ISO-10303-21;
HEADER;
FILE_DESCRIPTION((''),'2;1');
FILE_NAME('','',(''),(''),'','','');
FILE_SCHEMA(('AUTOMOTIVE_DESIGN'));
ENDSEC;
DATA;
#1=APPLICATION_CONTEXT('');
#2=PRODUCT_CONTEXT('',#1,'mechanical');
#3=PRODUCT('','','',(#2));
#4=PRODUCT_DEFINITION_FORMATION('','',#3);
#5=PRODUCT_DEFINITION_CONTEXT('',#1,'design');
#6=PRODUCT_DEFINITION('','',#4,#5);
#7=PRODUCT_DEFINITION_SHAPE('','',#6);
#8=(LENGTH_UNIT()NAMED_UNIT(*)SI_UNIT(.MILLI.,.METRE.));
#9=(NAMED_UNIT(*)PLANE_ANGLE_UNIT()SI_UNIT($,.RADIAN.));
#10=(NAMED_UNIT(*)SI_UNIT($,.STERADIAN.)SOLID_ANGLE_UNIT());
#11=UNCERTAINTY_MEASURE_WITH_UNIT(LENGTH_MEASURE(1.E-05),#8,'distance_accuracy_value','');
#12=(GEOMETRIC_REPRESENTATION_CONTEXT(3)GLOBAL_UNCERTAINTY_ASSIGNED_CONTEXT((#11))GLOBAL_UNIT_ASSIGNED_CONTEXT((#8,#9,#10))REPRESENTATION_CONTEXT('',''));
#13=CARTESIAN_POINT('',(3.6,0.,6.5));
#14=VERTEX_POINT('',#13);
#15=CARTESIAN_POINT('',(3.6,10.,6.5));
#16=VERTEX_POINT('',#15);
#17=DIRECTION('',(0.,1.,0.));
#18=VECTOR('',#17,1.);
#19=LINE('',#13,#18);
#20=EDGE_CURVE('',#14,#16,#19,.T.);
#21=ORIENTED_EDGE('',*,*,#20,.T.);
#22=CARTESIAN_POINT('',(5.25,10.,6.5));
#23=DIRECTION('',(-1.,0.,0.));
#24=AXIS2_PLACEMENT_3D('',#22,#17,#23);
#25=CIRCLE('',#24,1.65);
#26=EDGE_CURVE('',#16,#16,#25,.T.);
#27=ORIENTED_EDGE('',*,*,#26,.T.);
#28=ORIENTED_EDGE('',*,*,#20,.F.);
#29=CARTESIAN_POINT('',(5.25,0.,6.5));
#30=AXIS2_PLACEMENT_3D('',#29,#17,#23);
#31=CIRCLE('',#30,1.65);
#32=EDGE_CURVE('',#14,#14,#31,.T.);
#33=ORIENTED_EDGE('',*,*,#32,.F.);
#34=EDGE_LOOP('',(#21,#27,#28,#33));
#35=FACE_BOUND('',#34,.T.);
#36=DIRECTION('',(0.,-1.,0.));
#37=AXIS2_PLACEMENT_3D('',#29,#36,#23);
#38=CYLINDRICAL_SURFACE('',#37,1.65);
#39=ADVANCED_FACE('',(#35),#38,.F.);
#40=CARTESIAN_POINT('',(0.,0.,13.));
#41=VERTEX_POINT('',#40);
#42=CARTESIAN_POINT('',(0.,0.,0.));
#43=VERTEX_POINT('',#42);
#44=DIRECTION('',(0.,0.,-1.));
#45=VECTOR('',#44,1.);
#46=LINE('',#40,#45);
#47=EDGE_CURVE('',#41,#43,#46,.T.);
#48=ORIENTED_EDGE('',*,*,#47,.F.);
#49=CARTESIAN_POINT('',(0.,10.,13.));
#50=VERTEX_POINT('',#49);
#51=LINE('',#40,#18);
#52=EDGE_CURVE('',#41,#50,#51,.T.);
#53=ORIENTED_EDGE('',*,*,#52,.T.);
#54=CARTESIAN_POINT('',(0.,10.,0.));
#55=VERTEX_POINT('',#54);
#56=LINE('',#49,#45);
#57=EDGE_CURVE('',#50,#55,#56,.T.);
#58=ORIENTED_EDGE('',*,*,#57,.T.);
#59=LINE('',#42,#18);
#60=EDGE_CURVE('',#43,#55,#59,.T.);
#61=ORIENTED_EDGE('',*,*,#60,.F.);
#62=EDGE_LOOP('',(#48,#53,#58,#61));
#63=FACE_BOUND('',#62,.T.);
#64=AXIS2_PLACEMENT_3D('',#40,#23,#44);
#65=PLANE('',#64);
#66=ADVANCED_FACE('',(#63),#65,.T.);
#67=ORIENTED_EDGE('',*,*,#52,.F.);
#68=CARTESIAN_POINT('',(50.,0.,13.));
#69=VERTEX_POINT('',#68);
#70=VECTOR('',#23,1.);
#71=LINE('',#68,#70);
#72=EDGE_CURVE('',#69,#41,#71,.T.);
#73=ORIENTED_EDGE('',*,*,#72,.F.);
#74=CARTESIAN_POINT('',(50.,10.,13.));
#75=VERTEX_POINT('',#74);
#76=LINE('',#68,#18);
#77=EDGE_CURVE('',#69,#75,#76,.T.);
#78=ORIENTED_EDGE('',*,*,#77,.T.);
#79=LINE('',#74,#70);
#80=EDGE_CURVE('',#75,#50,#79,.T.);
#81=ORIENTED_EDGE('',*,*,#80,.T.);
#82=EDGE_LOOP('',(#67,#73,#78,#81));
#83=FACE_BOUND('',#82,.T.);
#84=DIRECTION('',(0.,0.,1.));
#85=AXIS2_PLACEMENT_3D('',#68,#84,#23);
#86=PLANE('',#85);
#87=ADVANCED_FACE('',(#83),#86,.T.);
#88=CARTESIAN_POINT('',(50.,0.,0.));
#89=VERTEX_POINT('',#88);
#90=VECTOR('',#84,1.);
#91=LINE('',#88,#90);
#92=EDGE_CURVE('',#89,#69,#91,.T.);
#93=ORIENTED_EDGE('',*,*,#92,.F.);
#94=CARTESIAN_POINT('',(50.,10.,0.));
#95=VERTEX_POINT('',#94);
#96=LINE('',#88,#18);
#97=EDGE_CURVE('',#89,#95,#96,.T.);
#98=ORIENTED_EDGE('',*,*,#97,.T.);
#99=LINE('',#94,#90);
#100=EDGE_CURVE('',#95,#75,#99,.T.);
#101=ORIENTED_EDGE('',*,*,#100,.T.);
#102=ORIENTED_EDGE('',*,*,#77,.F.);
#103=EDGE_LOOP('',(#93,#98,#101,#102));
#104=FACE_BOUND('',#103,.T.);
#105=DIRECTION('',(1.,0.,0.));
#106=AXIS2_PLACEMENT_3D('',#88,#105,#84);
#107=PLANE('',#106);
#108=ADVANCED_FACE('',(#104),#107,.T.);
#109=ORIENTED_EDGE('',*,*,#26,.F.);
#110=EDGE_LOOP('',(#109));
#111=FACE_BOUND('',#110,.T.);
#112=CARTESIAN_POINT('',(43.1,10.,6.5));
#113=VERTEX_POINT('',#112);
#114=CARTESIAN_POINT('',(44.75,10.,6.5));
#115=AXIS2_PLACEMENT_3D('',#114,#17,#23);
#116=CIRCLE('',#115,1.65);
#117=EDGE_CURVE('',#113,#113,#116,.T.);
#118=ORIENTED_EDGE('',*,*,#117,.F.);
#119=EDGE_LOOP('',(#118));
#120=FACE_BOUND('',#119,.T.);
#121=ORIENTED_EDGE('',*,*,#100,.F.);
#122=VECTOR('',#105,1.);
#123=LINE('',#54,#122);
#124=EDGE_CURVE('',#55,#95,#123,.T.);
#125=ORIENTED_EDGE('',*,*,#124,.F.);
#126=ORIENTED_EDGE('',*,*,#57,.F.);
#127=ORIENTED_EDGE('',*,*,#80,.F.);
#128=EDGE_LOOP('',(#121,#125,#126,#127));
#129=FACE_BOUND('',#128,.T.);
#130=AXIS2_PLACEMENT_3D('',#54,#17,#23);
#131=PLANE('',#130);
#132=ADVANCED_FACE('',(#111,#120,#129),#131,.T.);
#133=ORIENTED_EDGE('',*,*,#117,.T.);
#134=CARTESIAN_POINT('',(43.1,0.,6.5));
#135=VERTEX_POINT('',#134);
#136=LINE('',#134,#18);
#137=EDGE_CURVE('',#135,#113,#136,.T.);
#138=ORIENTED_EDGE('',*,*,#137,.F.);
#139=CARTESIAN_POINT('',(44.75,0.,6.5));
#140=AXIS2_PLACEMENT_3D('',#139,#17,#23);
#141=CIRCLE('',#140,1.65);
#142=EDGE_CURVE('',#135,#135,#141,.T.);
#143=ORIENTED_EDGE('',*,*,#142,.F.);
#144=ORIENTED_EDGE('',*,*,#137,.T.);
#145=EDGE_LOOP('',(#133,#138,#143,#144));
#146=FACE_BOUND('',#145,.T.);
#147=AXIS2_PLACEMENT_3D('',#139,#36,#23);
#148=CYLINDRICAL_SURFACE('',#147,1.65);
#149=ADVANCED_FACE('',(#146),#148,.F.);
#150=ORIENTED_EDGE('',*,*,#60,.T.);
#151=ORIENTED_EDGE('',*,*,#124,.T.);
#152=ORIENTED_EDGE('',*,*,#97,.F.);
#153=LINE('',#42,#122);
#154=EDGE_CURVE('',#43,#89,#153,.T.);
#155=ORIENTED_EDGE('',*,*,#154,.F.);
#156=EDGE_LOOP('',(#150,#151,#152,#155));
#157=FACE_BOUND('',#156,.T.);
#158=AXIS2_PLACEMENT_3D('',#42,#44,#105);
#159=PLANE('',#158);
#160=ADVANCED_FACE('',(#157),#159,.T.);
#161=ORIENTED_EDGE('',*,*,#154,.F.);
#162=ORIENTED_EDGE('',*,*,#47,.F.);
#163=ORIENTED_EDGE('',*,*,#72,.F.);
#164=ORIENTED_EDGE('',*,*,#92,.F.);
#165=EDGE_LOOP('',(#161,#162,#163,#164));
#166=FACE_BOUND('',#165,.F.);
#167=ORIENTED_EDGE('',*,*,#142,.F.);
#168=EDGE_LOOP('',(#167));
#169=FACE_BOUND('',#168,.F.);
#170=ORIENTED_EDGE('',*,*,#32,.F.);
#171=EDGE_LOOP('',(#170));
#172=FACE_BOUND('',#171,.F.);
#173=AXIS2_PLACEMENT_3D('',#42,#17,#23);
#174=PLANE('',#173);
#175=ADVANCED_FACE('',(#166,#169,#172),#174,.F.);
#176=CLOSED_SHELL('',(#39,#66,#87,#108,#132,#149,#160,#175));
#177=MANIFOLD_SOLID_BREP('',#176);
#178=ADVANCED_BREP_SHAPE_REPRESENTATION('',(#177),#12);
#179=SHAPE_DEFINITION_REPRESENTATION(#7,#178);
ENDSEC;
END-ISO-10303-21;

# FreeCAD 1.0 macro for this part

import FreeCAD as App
import Part
import Sketcher


def add_polygon(sketch, points):
    """Adds a closed chain of lines whose ends are joined by coincident constraints."""
    first, n = sketch.GeometryCount, len(points)
    for a, b in zip(points, points[1:] + points[:1]):
        sketch.addGeometry(Part.LineSegment(App.Vector(*a, 0), App.Vector(*b, 0)), False)
    for i in range(n):
        sketch.addConstraint(Sketcher.Constraint("Coincident", first + i, 2, first + (i + 1) % n, 1))

doc = App.newDocument("Part")
body = doc.addObject("PartDesign::Body", "Body")

# Sketch on XZ plane
sketch1 = doc.addObject("Sketcher::SketchObject", "Sketch")
body.addObject(sketch1)
sketch1.AttachmentSupport = (doc.XZ_Plane, [""])
sketch1.MapMode = "FlatFace"
add_polygon(sketch1, [(50, 0), (0, 0), (0, 13), (50, 13)])  # lines 0-3
sketch1.addGeometry(Part.Circle(App.Vector(44.8, 6.5, 0), App.Vector(0, 0, 1), 1.6), False)  # 4
sketch1.addGeometry(Part.Circle(App.Vector(5.2, 6.5, 0), App.Vector(0, 0, 1), 1.6), False)  # 5
sketch1.addConstraint([
    Sketcher.Constraint("Horizontal", 0),
    Sketcher.Constraint("Vertical", 1),
    Sketcher.Constraint("Horizontal", 2),
    Sketcher.Constraint("Vertical", 3),
    Sketcher.Constraint("Coincident", 0, 2, -1, 1),
    Sketcher.Constraint("Equal", 4, 5),
    Sketcher.Constraint("Horizontal", 4, 3, 5, 3),
    Sketcher.Constraint("Diameter", 4, 3.3),
    Sketcher.Constraint("DistanceX", 0, 2, 0, 1, 50.0),
    Sketcher.Constraint("DistanceY", 1, 1, 1, 2, 13.0),
    Sketcher.Constraint("DistanceX", 5, 3, 4, 3, 39.5),
    Sketcher.Constraint("DistanceY", -1, 1, 4, 3, 6.5),
    Sketcher.Constraint("DistanceX", -1, 1, 4, 3, 44.75),
])
pad1 = doc.addObject("PartDesign::Pad", "Pad")
body.addObject(pad1)
pad1.Profile = sketch1
pad1.Length = 10
pad1.Reversed = True

doc.recompute()
